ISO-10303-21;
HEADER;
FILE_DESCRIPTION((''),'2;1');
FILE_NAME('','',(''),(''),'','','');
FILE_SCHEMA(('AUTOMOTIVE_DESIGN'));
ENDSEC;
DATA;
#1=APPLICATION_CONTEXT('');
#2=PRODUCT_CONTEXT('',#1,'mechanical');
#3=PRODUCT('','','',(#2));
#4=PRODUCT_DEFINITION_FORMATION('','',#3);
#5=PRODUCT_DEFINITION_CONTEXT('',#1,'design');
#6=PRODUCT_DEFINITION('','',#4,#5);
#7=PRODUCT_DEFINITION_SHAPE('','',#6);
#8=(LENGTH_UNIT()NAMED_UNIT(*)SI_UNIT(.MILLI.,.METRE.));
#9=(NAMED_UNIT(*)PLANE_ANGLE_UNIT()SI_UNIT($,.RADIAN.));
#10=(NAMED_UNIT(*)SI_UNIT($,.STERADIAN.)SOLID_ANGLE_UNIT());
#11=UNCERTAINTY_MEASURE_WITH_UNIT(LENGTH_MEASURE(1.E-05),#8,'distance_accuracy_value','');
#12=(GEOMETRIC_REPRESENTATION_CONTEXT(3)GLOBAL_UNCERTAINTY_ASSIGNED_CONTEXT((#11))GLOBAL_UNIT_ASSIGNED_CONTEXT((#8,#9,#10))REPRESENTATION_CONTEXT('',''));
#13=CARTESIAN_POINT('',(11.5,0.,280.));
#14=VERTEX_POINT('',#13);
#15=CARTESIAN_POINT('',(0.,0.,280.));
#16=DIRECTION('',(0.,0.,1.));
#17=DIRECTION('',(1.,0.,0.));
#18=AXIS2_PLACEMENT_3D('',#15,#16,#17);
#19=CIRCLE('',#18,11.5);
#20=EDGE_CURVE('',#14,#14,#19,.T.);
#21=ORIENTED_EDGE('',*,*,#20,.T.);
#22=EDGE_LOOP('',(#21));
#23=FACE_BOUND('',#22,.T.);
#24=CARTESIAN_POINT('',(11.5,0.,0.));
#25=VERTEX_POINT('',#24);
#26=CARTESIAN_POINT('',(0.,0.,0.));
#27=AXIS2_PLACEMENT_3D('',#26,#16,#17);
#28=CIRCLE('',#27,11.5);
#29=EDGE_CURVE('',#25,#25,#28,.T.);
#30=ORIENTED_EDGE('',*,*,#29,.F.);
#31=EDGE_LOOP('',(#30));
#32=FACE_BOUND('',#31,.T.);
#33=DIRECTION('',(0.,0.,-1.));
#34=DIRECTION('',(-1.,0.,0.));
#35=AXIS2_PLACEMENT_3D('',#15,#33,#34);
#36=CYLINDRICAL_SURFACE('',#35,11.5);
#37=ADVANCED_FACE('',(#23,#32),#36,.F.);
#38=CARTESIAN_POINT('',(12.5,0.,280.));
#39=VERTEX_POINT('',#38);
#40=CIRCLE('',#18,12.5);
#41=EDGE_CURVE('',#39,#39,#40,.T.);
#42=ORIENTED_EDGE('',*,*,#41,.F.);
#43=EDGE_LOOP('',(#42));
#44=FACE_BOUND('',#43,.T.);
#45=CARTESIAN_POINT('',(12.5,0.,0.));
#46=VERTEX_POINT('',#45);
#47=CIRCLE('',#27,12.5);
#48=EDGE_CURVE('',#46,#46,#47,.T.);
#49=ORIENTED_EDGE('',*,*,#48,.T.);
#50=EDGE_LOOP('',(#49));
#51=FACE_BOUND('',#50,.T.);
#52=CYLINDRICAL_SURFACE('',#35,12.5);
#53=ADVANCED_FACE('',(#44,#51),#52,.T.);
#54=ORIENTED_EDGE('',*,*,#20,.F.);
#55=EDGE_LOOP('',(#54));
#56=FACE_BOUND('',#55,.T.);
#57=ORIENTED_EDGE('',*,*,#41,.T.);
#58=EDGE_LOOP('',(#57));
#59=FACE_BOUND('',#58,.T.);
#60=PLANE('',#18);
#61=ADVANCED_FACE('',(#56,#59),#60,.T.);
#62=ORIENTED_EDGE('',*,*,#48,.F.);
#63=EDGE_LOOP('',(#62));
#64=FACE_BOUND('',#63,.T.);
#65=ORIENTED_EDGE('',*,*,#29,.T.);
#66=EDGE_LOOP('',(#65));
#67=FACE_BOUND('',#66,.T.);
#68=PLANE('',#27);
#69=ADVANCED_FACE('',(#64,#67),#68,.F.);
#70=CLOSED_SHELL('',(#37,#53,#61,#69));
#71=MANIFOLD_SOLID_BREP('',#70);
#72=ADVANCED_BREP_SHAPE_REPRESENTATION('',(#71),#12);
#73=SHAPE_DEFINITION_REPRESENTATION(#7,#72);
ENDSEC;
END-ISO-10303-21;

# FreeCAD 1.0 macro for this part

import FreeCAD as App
import Part
import Sketcher
from FreeCAD import Vector
Q = App.Units.Quantity

doc = App.newDocument("Part")
body = doc.addObject("PartDesign::Body", "Body")

# Sketch on XY plane
sketch1 = doc.addObject("Sketcher::SketchObject", "Sketch")
body.addObject(sketch1)
sketch1.AttachmentSupport = (doc.XY_Plane, [""])
sketch1.MapMode = "FlatFace"
sketch1.addGeometry([
    Part.Circle(Vector(0, 0, 0), Vector(0, 0, 1), 12),
    Part.Circle(Vector(0, 0, 0), Vector(0, 0, 1), 12),
], False)
sketch1.addConstraint([
    Sketcher.Constraint("Coincident", 0, 3, -1, 1),
    Sketcher.Constraint("Coincident", 1, 3, -1, 1),
    Sketcher.Constraint("Diameter", 0, Q("25 mm")),
    Sketcher.Constraint("Diameter", 1, Q("23 mm")),
])
pad1 = doc.addObject("PartDesign::Pad", "Pad")
body.addObject(pad1)
pad1.Profile = sketch1
pad1.Length = 280

doc.recompute()
